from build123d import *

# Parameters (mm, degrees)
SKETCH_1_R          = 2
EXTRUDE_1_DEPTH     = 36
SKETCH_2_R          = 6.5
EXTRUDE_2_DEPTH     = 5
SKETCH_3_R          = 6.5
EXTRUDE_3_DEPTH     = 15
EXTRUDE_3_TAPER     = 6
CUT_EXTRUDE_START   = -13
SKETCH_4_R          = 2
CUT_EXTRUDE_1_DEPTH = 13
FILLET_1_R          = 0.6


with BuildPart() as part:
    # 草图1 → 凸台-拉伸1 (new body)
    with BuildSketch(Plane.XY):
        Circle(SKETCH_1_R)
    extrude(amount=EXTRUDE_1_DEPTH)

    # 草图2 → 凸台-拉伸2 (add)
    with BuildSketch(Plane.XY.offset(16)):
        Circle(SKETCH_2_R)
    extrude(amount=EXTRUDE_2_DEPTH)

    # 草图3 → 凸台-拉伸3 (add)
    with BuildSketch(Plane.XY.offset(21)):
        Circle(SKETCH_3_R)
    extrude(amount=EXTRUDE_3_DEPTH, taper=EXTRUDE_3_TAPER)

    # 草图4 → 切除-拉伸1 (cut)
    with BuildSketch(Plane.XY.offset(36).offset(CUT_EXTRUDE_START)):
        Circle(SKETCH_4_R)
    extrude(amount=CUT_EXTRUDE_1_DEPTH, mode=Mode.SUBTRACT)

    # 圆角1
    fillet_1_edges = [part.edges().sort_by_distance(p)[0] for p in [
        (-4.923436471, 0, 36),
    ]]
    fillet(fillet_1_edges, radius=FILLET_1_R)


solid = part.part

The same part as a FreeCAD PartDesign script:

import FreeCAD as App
import Part
import Sketcher
from FreeCAD import Vector
Q = App.Units.Quantity


def edges_at(feature, points):
    """Names of the edges that pass closest to the given points."""
    edges = feature.Shape.Edges
    near = lambda p: min(range(len(edges)), key=lambda i: edges[i].distToShape(Part.Vertex(*p))[0])
    return sorted({f"Edge{near(p) + 1}" for p in points})

doc = App.newDocument("Part")
body = doc.addObject("PartDesign::Body", "Body")

sketch1 = doc.addObject("Sketcher::SketchObject", "Sketch")
body.addObject(sketch1)
sketch1.AttachmentSupport = (doc.XY_Plane, [""])
sketch1.MapMode = "FlatFace"
sketch1.addGeometry(Part.Circle(Vector(0, 0, 0), Vector(0, 0, 1), 2), False)
sketch1.addConstraint([
    Sketcher.Constraint("Coincident", 0, 3, -1, 1),
    Sketcher.Constraint("Diameter", 0, Q("4 mm")),
])
pad1 = doc.addObject("PartDesign::Pad", "Pad")
body.addObject(pad1)
pad1.Profile = sketch1
pad1.Length = 36

sketch2 = doc.addObject("Sketcher::SketchObject", "Sketch001")
body.addObject(sketch2)
sketch2.AttachmentSupport = (doc.XY_Plane, [""])
sketch2.MapMode = "FlatFace"
sketch2.AttachmentOffset = App.Placement(Vector(0, 0, 16), App.Rotation())
sketch2.addGeometry(Part.Circle(Vector(0, 0, 0), Vector(0, 0, 1), 6), False)
sketch2.addConstraint([
    Sketcher.Constraint("Coincident", 0, 3, -1, 1),
    Sketcher.Constraint("Diameter", 0, Q("13 mm")),
])
pad2 = doc.addObject("PartDesign::Pad", "Pad001")
body.addObject(pad2)
pad2.Profile = sketch2
pad2.Length = 5

sketch3 = doc.addObject("Sketcher::SketchObject", "Sketch002")
body.addObject(sketch3)
sketch3.AttachmentSupport = (doc.XY_Plane, [""])
sketch3.MapMode = "FlatFace"
sketch3.AttachmentOffset = App.Placement(Vector(0, 0, 21), App.Rotation())
sketch3.addGeometry(Part.Circle(Vector(0, 0, 0), Vector(0, 0, 1), 6), False)
sketch3.addConstraint([
    Sketcher.Constraint("Coincident", 0, 3, -1, 1),
    Sketcher.Constraint("Diameter", 0, Q("13 mm")),
])
pad3 = doc.addObject("PartDesign::Pad", "Pad002")
body.addObject(pad3)
pad3.Profile = sketch3
pad3.Length = 15
pad3.TaperAngle = -6

sketch4 = doc.addObject("Sketcher::SketchObject", "Sketch003")
body.addObject(sketch4)
sketch4.AttachmentSupport = (doc.XY_Plane, [""])
sketch4.MapMode = "FlatFace"
sketch4.AttachmentOffset = App.Placement(Vector(0, 0, 23), App.Rotation())
sketch4.addGeometry(Part.Circle(Vector(0, 0, 0), Vector(0, 0, 1), 2), False)
sketch4.addConstraint([
    Sketcher.Constraint("Coincident", 0, 3, -1, 1),
    Sketcher.Constraint("Diameter", 0, Q("4 mm")),
])
pocket1 = doc.addObject("PartDesign::Pocket", "Pocket")
body.addObject(pocket1)
pocket1.Profile = sketch4
pocket1.Length = 13
pocket1.Reversed = True
doc.recompute()

fillet = doc.addObject("PartDesign::Fillet", "Fillet")
body.addObject(fillet)
fillet.Base = (pocket1, edges_at(pocket1, [(-4.923, 0, 36)]))
fillet.Radius = 0.6

doc.recompute()
